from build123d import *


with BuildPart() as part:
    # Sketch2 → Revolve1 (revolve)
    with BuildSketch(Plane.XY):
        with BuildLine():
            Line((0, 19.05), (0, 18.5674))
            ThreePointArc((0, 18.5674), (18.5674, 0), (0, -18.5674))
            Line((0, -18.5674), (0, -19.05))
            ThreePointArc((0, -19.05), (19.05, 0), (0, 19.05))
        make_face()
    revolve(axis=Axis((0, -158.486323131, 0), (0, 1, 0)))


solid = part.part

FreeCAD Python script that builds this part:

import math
import FreeCAD as App
import Part
import Sketcher
from FreeCAD import Vector
Q = App.Units.Quantity

doc = App.newDocument("Part")
body = doc.addObject("PartDesign::Body", "Body")

# Sketch on XY plane
sketch1 = body.newObject("Sketcher::SketchObject", "Sketch")
sketch1.AttachmentSupport = (doc.getObject("XY_Plane"), [""])
sketch1.MapMode = "FlatFace"
sketch1.addGeometry([
    Part.LineSegment(Vector(0, 19.05, 0), Vector(0, 18.5674, 0)),
    Part.ArcOfCircle(Part.Circle(Vector(0, 0, 0), Vector(0, 0, 1), 18.5674), math.radians(-90), math.radians(90)),
    Part.LineSegment(Vector(0, -18.5674, 0), Vector(0, -19.05, 0)),
    Part.ArcOfCircle(Part.Circle(Vector(0, 0, 0), Vector(0, 0, 1), 19.05), math.radians(-90), math.radians(90)),
], False)
sketch1.addConstraint([
    Sketcher.Constraint("Coincident", 0, 2, 1, 2),
    Sketcher.Constraint("Coincident", 1, 1, 2, 1),
    Sketcher.Constraint("Coincident", 2, 2, 3, 1),
    Sketcher.Constraint("Coincident", 3, 2, 0, 1),
    Sketcher.Constraint("Vertical", 0),
    Sketcher.Constraint("Vertical", 2),
    Sketcher.Constraint("Coincident", 1, 3, -1, 1),
    Sketcher.Constraint("Coincident", 3, 3, -1, 1),
    Sketcher.Constraint("PointOnObject", 0, 2, -2),
    Sketcher.Constraint("PointOnObject", 1, 1, -2),
    Sketcher.Constraint("Radius", 3, Q("0.75 in")),
    Sketcher.Constraint("Radius", 1, Q("0.731 in")),
])
revolution = body.newObject("PartDesign::Revolution", "Revolution")
revolution.Profile = sketch1
revolution.ReferenceAxis = (sketch1, ["V_Axis"])
revolution.Angle = 360

doc.recompute()
